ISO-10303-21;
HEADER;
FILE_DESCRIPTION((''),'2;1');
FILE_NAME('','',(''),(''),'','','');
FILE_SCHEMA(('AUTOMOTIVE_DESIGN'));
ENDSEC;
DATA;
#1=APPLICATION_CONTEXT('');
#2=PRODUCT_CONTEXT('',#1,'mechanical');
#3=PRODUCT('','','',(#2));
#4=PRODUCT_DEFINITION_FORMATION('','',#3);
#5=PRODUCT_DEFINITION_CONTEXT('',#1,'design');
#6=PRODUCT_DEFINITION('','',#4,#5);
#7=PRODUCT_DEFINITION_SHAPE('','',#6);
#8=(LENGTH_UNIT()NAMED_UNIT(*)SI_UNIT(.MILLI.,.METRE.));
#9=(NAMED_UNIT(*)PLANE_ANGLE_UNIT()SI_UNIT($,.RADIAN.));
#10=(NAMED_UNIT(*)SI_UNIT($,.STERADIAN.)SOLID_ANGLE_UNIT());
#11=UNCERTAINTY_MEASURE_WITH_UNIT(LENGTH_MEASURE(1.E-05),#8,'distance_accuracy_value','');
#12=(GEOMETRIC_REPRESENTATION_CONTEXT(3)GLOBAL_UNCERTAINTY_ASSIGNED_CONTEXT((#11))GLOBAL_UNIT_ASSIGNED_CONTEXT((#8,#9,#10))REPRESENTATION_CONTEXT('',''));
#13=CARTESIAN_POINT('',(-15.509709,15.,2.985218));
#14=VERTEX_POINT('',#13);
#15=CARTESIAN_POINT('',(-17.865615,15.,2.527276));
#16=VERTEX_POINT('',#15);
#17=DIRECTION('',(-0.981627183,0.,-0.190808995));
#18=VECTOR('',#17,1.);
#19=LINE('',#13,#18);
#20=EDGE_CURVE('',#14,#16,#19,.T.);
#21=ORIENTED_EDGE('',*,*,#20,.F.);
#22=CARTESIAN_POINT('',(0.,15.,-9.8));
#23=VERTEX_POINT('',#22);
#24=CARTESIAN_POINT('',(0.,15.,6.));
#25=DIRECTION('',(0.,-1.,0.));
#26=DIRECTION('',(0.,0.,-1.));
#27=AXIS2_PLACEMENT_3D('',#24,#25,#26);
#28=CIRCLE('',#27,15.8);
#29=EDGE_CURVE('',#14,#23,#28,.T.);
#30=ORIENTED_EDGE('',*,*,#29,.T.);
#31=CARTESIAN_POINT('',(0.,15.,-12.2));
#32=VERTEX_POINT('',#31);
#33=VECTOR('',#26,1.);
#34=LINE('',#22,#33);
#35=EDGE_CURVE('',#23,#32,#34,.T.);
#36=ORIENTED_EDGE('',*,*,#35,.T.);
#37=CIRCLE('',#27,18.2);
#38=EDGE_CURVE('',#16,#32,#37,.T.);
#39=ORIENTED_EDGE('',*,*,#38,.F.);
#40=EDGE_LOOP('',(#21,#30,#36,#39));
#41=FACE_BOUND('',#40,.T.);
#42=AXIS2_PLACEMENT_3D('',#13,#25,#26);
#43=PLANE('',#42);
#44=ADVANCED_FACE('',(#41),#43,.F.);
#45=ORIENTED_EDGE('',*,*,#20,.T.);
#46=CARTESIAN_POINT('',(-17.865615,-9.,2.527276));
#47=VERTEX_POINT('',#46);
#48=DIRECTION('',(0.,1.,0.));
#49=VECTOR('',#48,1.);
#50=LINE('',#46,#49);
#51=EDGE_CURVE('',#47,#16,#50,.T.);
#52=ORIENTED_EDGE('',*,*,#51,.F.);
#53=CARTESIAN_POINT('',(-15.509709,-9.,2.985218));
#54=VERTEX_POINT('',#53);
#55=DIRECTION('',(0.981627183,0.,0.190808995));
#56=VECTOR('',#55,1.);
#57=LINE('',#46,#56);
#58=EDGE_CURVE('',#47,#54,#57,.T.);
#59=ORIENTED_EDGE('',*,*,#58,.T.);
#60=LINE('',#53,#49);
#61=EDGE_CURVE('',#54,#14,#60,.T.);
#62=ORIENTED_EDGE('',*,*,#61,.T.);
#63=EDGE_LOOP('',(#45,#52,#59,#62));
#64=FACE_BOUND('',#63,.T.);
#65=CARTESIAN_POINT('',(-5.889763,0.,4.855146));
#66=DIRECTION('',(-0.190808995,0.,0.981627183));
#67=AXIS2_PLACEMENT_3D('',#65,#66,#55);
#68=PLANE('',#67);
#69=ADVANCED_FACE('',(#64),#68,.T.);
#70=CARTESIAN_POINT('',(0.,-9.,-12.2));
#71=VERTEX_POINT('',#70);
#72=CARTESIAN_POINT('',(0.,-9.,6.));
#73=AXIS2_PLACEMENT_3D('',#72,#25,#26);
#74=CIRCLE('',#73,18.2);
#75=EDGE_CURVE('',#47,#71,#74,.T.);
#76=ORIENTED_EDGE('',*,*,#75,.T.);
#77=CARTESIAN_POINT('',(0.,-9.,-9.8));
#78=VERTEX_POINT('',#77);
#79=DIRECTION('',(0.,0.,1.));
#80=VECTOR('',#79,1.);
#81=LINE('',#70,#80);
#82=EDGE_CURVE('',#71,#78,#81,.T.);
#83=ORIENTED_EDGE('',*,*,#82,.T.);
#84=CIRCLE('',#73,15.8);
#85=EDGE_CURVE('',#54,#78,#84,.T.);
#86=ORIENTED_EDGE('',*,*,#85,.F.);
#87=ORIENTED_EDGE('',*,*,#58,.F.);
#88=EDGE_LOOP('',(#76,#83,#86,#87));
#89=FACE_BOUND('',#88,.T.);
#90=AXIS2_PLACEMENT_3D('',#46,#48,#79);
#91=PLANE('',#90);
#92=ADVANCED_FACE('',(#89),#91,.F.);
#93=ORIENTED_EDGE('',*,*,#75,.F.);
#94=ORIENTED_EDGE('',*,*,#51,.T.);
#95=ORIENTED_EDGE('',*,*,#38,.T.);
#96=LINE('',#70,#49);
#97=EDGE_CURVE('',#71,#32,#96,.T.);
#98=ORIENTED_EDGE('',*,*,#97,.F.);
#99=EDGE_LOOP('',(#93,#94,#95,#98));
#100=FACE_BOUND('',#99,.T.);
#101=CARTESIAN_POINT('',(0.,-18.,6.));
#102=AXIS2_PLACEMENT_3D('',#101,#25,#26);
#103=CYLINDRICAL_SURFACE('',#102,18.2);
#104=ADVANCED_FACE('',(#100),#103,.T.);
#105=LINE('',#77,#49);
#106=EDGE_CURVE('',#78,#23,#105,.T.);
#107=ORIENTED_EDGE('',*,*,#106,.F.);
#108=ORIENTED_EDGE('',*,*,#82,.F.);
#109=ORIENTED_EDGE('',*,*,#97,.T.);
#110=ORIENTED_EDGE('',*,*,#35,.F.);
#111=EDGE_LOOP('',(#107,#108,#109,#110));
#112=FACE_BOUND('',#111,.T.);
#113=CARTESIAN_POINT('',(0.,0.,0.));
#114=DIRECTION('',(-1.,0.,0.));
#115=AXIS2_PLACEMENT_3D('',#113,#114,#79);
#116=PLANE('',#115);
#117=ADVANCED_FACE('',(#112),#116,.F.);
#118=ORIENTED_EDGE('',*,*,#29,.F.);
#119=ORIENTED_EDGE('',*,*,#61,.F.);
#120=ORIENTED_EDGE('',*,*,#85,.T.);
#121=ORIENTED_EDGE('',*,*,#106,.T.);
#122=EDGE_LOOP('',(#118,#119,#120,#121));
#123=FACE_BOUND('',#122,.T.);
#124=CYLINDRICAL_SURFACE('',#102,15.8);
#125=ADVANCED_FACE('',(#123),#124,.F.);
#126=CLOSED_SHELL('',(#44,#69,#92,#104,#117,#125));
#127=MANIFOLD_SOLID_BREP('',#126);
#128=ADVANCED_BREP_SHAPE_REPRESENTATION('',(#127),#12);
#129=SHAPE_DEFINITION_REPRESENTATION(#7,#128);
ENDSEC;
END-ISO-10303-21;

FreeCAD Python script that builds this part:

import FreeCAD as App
import Part
import Sketcher

doc = App.newDocument("Part")
body = doc.addObject("PartDesign::Body", "Body")

# Sketch on YZ plane
sketch1 = body.newObject("Sketcher::SketchObject", "Sketch")
sketch1.AttachmentSupport = (doc.getObject("YZ_Plane"), [""])
sketch1.MapMode = "FlatFace"
sketch1.addGeometry([
    Part.LineSegment(App.Vector(15, -9.8, 0), App.Vector(-9, -9.8, 0)),
    Part.LineSegment(App.Vector(-9, -9.8, 0), App.Vector(-9, -12.2, 0)),
    Part.LineSegment(App.Vector(-9, -12.2, 0), App.Vector(15, -12.2, 0)),
    Part.LineSegment(App.Vector(15, -12.2, 0), App.Vector(15, -9.8, 0)),
], False)
sketch1.addGeometry(Part.LineSegment(App.Vector(-9, 6, 0), App.Vector(15, 6, 0)), True)  # axis
sketch1.addConstraint([
    Sketcher.Constraint("Coincident", 0, 2, 1, 1),
    Sketcher.Constraint("Coincident", 1, 2, 2, 1),
    Sketcher.Constraint("Coincident", 2, 2, 3, 1),
    Sketcher.Constraint("Coincident", 3, 2, 0, 1),
    Sketcher.Constraint("Horizontal", 0),
    Sketcher.Constraint("Vertical", 1),
    Sketcher.Constraint("Horizontal", 2),
    Sketcher.Constraint("Vertical", 3),
    Sketcher.Constraint("Horizontal", 4),
    Sketcher.Constraint("Vertical", 1, 2, 4, 1),
    Sketcher.Constraint("Vertical", 3, 2, 4, 2),
    Sketcher.Constraint("DistanceX", 0, 2, 0, 1, 24.0),
    Sketcher.Constraint("DistanceY", 1, 2, 1, 1, 2.4),
    Sketcher.Constraint("DistanceX", 0, 2, -1, 1, 9.0),
    Sketcher.Constraint("DistanceY", -1, 1, 4, 1, 6.0),
    Sketcher.Constraint("DistanceY", 0, 2, -1, 1, 9.8),
])
revolution = body.newObject("PartDesign::Revolution", "Revolution")
revolution.Profile = sketch1
revolution.ReferenceAxis = (sketch1, ["Axis0"])
revolution.Angle = 79

doc.recompute()
